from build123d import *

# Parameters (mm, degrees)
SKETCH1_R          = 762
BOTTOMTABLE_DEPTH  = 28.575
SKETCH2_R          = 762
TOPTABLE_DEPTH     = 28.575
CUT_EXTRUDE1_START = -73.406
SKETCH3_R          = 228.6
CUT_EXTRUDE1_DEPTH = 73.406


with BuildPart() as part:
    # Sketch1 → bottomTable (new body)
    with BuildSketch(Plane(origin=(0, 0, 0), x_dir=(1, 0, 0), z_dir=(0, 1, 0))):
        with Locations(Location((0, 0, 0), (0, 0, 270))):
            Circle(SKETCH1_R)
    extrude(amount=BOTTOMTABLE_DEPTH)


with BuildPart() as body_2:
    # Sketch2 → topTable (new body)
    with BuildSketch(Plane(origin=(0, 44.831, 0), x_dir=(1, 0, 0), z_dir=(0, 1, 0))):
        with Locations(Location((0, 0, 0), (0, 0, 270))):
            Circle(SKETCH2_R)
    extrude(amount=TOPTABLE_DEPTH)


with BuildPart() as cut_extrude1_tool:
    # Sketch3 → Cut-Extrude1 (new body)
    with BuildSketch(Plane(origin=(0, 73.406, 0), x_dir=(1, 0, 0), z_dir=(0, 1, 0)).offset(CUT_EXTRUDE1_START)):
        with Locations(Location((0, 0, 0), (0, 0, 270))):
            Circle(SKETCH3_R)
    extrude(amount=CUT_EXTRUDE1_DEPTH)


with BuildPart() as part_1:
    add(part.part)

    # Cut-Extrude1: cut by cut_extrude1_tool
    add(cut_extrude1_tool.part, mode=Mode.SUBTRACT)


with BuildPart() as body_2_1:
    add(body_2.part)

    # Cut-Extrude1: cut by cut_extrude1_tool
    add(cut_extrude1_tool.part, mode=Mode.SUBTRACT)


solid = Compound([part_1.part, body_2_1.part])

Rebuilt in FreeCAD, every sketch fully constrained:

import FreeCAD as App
import Part
import Sketcher
from FreeCAD import Vector
Q = App.Units.Quantity

doc = App.newDocument("Part")
body = doc.addObject("PartDesign::Body", "Body")

sketch1 = doc.addObject("Sketcher::SketchObject", "Sketch")
body.addObject(sketch1)
sketch1.AttachmentSupport = (doc.XZ_Plane, [""])
sketch1.MapMode = "FlatFace"
sketch1.addGeometry(Part.Circle(Vector(0, 0, 0), Vector(0, 0, 1), 762), False)
sketch1.addConstraint(Sketcher.Constraint("Coincident", 0, 3, -1, 1))
sketch1.addConstraint(Sketcher.Constraint("Diameter", 0, Q("60 in")))
pad1 = doc.addObject("PartDesign::Pad", "Pad")
body.addObject(pad1)
pad1.Profile = sketch1
pad1.Length = Q("1.125 in")
pad1.Reversed = True
body2 = doc.addObject("PartDesign::Body", "Body001")

sketch2 = doc.addObject("Sketcher::SketchObject", "Sketch001")
body2.addObject(sketch2)
sketch2.AttachmentSupport = (doc.getObject("XZ_Plane001"), [""])
sketch2.MapMode = "FlatFace"
sketch2.AttachmentOffset = App.Placement(Vector(0, 0, -1.765 * 25.4), App.Rotation())
sketch2.addGeometry(Part.Circle(Vector(0, 0, 0), Vector(0, 0, 1), 762), False)
sketch2.addConstraint(Sketcher.Constraint("Coincident", 0, 3, -1, 1))
sketch2.addConstraint(Sketcher.Constraint("Diameter", 0, Q("60 in")))
pad2 = doc.addObject("PartDesign::Pad", "Pad001")
body2.addObject(pad2)
pad2.Profile = sketch2
pad2.Length = Q("1.125 in")
pad2.Reversed = True
body3 = doc.addObject("PartDesign::Body", "Body002")

sketch3 = doc.addObject("Sketcher::SketchObject", "Sketch002")
body3.addObject(sketch3)
sketch3.AttachmentSupport = (doc.getObject("XZ_Plane002"), [""])
sketch3.MapMode = "FlatFace"
sketch3.addGeometry(Part.Circle(Vector(0, 0, 0), Vector(0, 0, 1), 229), False)
sketch3.addConstraint(Sketcher.Constraint("Coincident", 0, 3, -1, 1))
sketch3.addConstraint(Sketcher.Constraint("Diameter", 0, Q("18 in")))
pad3 = doc.addObject("PartDesign::Pad", "Pad002")
body3.addObject(pad3)
pad3.Profile = sketch3
pad3.Length = Q("2.89 in")
pad3.Reversed = True
doc.recompute()

body4 = doc.addObject("PartDesign::Body", "Body003")
body4.BaseFeature = body3
boolean = doc.addObject("PartDesign::Boolean", "Boolean")
body.addObject(boolean)
boolean.Type = "Cut"
boolean.addObjects([body4])
doc.recompute()

boolean2 = doc.addObject("PartDesign::Boolean", "Boolean001")
body2.addObject(boolean2)
boolean2.Type = "Cut"
boolean2.addObjects([body3])

doc.recompute()
